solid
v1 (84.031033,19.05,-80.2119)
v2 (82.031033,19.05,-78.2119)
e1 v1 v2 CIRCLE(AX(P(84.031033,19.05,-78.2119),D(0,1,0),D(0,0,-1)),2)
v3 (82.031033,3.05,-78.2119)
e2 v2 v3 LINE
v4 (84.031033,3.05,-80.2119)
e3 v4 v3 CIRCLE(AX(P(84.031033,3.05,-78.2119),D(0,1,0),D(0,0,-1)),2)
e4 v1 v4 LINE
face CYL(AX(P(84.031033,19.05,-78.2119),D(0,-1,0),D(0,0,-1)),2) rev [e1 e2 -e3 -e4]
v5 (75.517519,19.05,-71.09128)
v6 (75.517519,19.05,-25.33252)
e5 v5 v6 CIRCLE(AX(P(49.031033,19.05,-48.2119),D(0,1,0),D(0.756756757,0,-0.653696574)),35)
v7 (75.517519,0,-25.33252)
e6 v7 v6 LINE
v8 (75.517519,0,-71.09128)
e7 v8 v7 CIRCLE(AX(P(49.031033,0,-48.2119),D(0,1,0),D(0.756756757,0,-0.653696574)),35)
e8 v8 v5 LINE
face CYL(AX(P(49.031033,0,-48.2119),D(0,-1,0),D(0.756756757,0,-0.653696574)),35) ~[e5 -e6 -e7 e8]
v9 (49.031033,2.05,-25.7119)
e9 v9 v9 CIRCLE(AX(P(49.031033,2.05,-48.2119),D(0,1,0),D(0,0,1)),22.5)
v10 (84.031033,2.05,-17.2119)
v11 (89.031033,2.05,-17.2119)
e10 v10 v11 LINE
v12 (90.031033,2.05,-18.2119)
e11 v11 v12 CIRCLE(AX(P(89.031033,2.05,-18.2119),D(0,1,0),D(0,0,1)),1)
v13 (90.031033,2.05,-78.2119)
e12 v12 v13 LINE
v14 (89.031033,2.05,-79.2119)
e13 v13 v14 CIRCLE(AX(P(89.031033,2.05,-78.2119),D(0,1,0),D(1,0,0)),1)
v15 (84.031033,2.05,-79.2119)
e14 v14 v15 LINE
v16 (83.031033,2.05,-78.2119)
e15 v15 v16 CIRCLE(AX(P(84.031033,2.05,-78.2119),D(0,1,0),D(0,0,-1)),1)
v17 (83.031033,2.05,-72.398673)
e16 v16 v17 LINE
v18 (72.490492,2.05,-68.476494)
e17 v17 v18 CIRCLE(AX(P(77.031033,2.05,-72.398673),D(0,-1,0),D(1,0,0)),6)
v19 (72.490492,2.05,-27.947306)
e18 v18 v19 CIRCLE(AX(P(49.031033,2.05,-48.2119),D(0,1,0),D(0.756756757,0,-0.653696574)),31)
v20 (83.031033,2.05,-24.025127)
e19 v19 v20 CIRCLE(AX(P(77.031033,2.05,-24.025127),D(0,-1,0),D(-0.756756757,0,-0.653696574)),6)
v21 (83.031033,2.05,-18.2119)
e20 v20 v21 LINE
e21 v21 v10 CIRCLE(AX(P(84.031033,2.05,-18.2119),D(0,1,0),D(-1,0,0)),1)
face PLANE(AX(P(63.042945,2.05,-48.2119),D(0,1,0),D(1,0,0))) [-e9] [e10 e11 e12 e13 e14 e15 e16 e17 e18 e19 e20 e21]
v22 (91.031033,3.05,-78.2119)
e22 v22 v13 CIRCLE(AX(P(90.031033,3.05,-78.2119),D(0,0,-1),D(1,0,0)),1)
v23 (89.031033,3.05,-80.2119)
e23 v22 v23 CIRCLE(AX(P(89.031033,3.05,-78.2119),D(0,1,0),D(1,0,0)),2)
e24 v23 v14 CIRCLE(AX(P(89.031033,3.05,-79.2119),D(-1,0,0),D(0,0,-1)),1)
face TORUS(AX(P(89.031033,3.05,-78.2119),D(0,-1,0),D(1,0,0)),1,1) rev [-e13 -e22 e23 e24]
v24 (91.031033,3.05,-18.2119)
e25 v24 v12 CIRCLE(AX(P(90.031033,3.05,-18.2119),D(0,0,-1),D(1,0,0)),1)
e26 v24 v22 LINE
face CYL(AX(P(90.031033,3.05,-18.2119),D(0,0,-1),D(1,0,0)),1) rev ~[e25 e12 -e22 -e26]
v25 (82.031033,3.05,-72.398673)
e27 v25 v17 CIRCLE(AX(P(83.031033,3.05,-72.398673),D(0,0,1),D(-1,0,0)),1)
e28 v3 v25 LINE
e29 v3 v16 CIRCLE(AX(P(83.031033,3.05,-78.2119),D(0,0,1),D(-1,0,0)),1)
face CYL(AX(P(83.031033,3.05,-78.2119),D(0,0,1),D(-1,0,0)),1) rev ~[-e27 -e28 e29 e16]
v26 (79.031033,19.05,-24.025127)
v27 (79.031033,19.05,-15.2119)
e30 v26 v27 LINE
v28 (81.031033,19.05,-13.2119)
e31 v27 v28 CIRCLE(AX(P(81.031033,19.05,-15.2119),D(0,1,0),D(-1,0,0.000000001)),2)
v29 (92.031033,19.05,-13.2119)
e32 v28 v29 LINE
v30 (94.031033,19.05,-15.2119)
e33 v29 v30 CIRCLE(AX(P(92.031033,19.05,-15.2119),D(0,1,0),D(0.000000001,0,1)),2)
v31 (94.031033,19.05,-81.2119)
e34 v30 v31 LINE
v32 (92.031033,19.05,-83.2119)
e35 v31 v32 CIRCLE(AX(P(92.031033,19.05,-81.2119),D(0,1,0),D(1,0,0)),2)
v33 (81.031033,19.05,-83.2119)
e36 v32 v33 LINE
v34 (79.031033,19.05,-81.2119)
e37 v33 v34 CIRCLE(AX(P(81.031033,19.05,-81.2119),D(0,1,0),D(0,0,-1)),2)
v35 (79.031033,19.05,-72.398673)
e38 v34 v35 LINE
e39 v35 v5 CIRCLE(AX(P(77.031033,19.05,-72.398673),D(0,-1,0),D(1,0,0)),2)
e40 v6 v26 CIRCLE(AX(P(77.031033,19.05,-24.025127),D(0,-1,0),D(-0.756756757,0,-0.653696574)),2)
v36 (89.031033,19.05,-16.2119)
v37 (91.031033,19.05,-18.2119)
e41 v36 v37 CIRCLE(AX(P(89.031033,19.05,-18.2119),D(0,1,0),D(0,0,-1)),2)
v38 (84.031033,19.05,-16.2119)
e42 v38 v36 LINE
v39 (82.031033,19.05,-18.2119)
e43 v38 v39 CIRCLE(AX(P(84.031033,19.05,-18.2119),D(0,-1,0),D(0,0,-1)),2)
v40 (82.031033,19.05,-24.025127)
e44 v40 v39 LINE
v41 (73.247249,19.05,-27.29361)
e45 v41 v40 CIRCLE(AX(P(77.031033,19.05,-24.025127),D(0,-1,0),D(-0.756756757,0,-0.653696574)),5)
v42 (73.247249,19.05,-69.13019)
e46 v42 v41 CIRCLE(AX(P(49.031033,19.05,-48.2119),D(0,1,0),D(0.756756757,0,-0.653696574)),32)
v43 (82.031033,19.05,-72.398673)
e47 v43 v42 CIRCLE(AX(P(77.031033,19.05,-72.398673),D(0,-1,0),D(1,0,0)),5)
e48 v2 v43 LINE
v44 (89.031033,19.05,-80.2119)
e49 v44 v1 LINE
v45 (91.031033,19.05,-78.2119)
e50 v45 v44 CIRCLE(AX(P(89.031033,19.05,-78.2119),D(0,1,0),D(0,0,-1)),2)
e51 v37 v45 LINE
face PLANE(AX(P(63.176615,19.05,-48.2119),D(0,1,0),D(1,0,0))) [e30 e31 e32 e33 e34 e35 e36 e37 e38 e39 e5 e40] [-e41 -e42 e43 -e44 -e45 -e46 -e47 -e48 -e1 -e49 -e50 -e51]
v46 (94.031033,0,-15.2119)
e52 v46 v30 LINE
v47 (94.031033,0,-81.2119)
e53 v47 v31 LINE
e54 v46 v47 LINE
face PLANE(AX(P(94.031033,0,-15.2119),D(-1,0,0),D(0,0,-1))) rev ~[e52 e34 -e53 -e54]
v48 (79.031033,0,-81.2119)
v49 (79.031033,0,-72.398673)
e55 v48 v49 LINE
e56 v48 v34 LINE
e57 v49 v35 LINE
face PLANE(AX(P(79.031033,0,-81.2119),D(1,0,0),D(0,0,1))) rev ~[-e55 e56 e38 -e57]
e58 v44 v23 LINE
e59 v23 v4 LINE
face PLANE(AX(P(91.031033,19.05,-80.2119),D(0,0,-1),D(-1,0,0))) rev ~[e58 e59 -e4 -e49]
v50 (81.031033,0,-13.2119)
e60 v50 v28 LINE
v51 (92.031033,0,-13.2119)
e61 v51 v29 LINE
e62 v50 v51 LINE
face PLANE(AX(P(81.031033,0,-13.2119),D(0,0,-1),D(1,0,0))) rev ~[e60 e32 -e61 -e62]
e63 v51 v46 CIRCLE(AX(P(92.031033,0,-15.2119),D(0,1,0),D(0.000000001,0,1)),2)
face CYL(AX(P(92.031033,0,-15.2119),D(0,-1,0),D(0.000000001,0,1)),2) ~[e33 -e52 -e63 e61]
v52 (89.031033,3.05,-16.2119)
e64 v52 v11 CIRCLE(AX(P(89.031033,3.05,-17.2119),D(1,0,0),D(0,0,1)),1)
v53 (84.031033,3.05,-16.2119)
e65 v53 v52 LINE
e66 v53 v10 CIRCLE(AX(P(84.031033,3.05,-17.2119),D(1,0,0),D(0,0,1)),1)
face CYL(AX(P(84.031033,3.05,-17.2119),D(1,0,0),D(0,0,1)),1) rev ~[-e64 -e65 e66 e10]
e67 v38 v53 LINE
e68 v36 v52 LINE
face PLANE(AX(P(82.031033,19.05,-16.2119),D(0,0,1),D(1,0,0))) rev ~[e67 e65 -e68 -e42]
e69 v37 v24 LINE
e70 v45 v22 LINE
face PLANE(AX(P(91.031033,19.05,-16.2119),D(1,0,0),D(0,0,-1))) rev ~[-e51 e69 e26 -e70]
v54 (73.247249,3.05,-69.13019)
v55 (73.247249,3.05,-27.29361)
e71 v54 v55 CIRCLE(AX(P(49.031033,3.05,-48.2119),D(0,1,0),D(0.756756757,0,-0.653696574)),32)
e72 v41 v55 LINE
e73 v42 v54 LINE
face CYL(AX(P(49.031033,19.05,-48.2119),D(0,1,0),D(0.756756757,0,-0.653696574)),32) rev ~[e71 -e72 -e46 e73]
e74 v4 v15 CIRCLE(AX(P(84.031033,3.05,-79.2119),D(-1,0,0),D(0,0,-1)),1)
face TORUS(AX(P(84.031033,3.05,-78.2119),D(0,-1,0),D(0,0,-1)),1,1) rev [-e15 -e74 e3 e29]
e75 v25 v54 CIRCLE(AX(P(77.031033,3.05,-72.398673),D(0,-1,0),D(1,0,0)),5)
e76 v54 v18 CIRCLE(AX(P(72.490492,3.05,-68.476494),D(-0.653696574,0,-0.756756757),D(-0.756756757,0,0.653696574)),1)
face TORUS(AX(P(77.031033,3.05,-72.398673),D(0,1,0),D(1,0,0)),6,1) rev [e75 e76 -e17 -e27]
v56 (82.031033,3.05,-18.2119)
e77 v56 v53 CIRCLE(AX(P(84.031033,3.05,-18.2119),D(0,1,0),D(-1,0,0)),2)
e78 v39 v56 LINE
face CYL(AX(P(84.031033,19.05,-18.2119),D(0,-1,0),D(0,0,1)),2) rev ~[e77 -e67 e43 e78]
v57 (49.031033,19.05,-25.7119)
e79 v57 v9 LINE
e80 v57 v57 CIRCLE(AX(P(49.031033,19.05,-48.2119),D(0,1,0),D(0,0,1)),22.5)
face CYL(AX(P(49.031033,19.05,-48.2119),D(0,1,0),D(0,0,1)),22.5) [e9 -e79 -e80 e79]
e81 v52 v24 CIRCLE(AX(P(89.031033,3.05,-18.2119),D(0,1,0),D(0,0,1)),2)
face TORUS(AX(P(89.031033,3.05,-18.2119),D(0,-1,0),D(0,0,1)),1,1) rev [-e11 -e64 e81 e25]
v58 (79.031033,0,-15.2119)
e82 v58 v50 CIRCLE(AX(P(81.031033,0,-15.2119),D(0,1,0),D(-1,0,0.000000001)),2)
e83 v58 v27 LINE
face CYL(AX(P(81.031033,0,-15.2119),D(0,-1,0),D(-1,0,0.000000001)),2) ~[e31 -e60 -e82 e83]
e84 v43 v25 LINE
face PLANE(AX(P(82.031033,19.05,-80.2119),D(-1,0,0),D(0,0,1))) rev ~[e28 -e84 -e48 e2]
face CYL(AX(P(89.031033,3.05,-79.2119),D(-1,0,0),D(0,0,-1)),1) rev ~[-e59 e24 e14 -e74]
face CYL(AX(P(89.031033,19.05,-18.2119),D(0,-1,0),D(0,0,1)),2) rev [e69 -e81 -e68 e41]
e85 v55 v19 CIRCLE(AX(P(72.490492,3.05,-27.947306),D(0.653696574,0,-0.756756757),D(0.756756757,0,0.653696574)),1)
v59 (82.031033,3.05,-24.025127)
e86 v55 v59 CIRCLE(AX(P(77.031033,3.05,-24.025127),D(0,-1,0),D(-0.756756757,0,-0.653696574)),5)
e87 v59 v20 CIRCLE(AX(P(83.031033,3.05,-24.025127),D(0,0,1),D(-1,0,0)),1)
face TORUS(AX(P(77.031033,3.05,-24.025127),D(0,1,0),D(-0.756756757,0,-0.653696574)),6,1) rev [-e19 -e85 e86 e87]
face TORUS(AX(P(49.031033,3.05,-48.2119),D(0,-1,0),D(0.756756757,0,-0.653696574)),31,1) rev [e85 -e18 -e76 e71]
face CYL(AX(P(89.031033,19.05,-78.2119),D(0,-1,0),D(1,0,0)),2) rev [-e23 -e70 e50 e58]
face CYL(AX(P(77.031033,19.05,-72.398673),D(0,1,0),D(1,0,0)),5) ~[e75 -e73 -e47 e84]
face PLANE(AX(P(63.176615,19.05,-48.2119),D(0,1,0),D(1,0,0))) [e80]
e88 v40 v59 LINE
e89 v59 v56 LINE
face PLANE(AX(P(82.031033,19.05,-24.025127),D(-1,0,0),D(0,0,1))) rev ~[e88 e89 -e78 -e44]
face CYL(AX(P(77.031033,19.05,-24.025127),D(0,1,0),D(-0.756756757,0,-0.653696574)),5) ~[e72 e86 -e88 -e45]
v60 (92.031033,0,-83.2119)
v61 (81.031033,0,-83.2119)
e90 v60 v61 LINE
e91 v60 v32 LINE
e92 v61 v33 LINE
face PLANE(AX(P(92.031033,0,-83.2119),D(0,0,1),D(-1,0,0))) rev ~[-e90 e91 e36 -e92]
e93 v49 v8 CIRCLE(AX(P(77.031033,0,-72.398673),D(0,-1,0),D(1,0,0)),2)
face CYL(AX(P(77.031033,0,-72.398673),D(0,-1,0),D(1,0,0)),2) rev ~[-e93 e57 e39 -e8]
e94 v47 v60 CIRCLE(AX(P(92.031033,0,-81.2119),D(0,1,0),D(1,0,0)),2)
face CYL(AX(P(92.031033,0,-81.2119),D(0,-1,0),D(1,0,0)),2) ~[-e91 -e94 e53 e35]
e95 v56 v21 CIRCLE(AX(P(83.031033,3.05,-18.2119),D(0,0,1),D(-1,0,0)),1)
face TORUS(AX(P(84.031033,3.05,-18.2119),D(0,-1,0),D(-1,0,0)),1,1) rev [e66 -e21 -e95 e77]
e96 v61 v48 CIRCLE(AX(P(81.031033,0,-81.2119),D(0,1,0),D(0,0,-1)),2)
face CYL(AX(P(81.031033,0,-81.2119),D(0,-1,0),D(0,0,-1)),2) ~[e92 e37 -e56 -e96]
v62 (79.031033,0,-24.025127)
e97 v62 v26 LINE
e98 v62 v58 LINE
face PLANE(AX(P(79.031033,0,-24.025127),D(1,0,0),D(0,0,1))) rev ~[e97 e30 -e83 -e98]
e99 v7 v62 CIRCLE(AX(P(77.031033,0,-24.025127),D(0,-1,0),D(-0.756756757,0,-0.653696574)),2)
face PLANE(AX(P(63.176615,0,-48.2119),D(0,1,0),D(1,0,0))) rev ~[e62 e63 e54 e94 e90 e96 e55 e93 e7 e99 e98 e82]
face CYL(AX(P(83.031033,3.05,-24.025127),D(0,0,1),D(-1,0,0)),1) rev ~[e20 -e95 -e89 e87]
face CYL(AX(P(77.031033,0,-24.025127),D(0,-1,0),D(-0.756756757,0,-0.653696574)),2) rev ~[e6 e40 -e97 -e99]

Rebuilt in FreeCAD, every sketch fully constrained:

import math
import FreeCAD as App
import Part
import Sketcher
from FreeCAD import Vector


def edges_at(feature, points):
    """Names of the edges that pass closest to the given points."""
    edges = feature.Shape.Edges
    near = lambda p: min(range(len(edges)), key=lambda i: edges[i].distToShape(Part.Vertex(*p))[0])
    return sorted({f"Edge{near(p) + 1}" for p in points})

doc = App.newDocument("Part")
params = doc.addObject("Spreadsheet::Sheet", "Params")
for row, (alias, value) in enumerate([
    ("sketch1_radius", "2 mm"),
    ("sketch1_radius2", "35 mm"),
    ("sketch1_width", "11 mm"),
    ("sketch1_height", "66 mm"),
    ("pad1_length", "19.05 mm"),
    ("sketch2_diameter", "45 mm"),
    ("sketch2_radius", "5 mm"),
    ("sketch2_radius2", "32 mm"),
    ("sketch2_width", "9 mm"),
    ("sketch2_height", "64 mm"),
    ("pocket1_length", "17 mm"),
    ("fillet_radius", "2 mm"),
    ("fillet2_radius", "1 mm"),
], start=1):
    params.set(f"A{row}", alias)
    params.set(f"B{row}", "=" + value)
    params.setAlias(f"B{row}", alias)

body = doc.addObject("PartDesign::Body", "Body")

# Sketch on XZ plane
sketch1 = body.newObject("Sketcher::SketchObject", "Sketch")
sketch1.AttachmentSupport = (doc.getObject("XZ_Plane"), [""])
sketch1.MapMode = "FlatFace"
sketch1.addGeometry([
    Part.LineSegment(Vector(79, -24, 0), Vector(79, -15.2, 0)),  # 0
    Part.ArcOfCircle(Part.Circle(Vector(81, -15.2, 0), Vector(0, 0, 1), 2), math.radians(90), math.radians(180)),  # 1
    Part.LineSegment(Vector(81, -13.2, 0), Vector(92, -13.2, 0)),  # 2
    Part.ArcOfCircle(Part.Circle(Vector(92, -15.2, 0), Vector(0, 0, 1), 2), math.radians(0), math.radians(90)),  # 3
    Part.LineSegment(Vector(94, -15.2, 0), Vector(94, -81.2, 0)),  # 4
    Part.ArcOfCircle(Part.Circle(Vector(92, -81.2, 0), Vector(0, 0, 1), 2), math.radians(-90), math.radians(0)),  # 5
    Part.LineSegment(Vector(92, -83.2, 0), Vector(81, -83.2, 0)),  # 6
    Part.ArcOfCircle(Part.Circle(Vector(81, -81.2, 0), Vector(0, 0, 1), 2), math.radians(180), math.radians(270)),  # 7
    Part.LineSegment(Vector(79, -81.2, 0), Vector(79, -72.4, 0)),  # 8
    Part.ArcOfCircle(Part.Circle(Vector(77, -72.4, 0), Vector(0, 0, 1), 2), math.radians(0), math.radians(139)),  # 9
    Part.ArcOfCircle(Part.Circle(Vector(49, -48.2, 0), Vector(0, 0, 1), 35), math.radians(41), math.radians(319)),  # 10
    Part.ArcOfCircle(Part.Circle(Vector(77, -24, 0), Vector(0, 0, 1), 2), math.radians(-139), math.radians(0)),  # 11
], False)
sketch1.addConstraint([
    Sketcher.Constraint("Tangent", 0, 2, 1, 2),
    Sketcher.Constraint("Tangent", 1, 1, 2, 1),
    Sketcher.Constraint("Tangent", 2, 2, 3, 2),
    Sketcher.Constraint("Tangent", 3, 1, 4, 1),
    Sketcher.Constraint("Tangent", 4, 2, 5, 2),
    Sketcher.Constraint("Tangent", 5, 1, 6, 1),
    Sketcher.Constraint("Tangent", 6, 2, 7, 2),
    Sketcher.Constraint("Tangent", 7, 1, 8, 1),
    Sketcher.Constraint("Tangent", 8, 2, 9, 1),
    Sketcher.Constraint("Tangent", 9, 2, 10, 2),
    Sketcher.Constraint("Tangent", 10, 1, 11, 1),
    Sketcher.Constraint("Tangent", 11, 2, 0, 1),
    Sketcher.Constraint("Vertical", 0),
    Sketcher.Constraint("Horizontal", 2),
    Sketcher.Constraint("Vertical", 4),
    Sketcher.Constraint("Horizontal", 6),
    Sketcher.Constraint("Vertical", 8),
    Sketcher.Constraint("Equal", 1, 3),
    Sketcher.Constraint("Equal", 3, 5),
    Sketcher.Constraint("Equal", 5, 7),
    Sketcher.Constraint("Equal", 7, 9),
    Sketcher.Constraint("Equal", 9, 11),
    Sketcher.Constraint("Vertical", 1, 3, 7, 3),
    Sketcher.Constraint("Equal", 0, 8),
    Sketcher.Constraint("Radius", 1, 2.0),
    Sketcher.Constraint("Radius", 10, 35.0),
    Sketcher.Constraint("DistanceX", 2, 1, 2, 2, 11.0),
    Sketcher.Constraint("DistanceY", 4, 2, 4, 1, 66.0),
    Sketcher.Constraint("DistanceX", 10, 3, 9, 3, 28.0),
    Sketcher.Constraint("DistanceY", 1, 3, -1, 1, 15.2119),
    Sketcher.Constraint("DistanceX", -1, 1, 9, 2, 75.517519),
])
sketch1.setExpression("Constraints[24]", "Params.sketch1_radius")
sketch1.setExpression("Constraints[25]", "Params.sketch1_radius2")
sketch1.setExpression("Constraints[26]", "Params.sketch1_width")
sketch1.setExpression("Constraints[27]", "Params.sketch1_height")
pad1 = body.newObject("PartDesign::Pad", "Pad")
pad1.Profile = sketch1
pad1.setExpression("Length", "Params.pad1_length")
pad1.Reversed = True

# Sketch on XZ plane
sketch2 = body.newObject("Sketcher::SketchObject", "Sketch001")
sketch2.AttachmentSupport = (doc.getObject("XZ_Plane"), [""])
sketch2.MapMode = "FlatFace"
sketch2.AttachmentOffset = App.Placement(Vector(0, 0, -19.05), App.Rotation())
sketch2.addGeometry([
    Part.LineSegment(Vector(82, -16, 0), Vector(91, -16, 0)),  # 0
    Part.LineSegment(Vector(91, -16, 0), Vector(91, -80, 0)),  # 1
    Part.LineSegment(Vector(91, -80, 0), Vector(82, -80, 0)),  # 2
    Part.LineSegment(Vector(82, -80, 0), Vector(82, -72, 0)),  # 3
    Part.ArcOfCircle(Part.Circle(Vector(77, -72, 0), Vector(0, 0, 1), 5), math.radians(0), math.radians(139)),  # 4
    Part.ArcOfCircle(Part.Circle(Vector(49, -48, 0), Vector(0, 0, 1), 32), math.radians(41), math.radians(319)),  # 5
    Part.ArcOfCircle(Part.Circle(Vector(77, -24, 0), Vector(0, 0, 1), 5), math.radians(-139), math.radians(0)),  # 6
    Part.LineSegment(Vector(82, -24, 0), Vector(82, -16, 0)),  # 7
    Part.Circle(Vector(49, -48, 0), Vector(0, 0, 1), 22),  # 8
], False)
sketch2.addConstraint([
    Sketcher.Constraint("Coincident", 0, 2, 1, 1),
    Sketcher.Constraint("Coincident", 1, 2, 2, 1),
    Sketcher.Constraint("Coincident", 2, 2, 3, 1),
    Sketcher.Constraint("Tangent", 3, 2, 4, 1),
    Sketcher.Constraint("Tangent", 4, 2, 5, 2),
    Sketcher.Constraint("Tangent", 5, 1, 6, 1),
    Sketcher.Constraint("Tangent", 6, 2, 7, 1),
    Sketcher.Constraint("Coincident", 7, 2, 0, 1),
    Sketcher.Constraint("Horizontal", 0),
    Sketcher.Constraint("Vertical", 1),
    Sketcher.Constraint("Horizontal", 2),
    Sketcher.Constraint("Vertical", 3),
    Sketcher.Constraint("Vertical", 7),
    Sketcher.Constraint("Coincident", 8, 3, 5, 3),
    Sketcher.Constraint("Equal", 4, 6),
    Sketcher.Constraint("Vertical", 4, 3, 6, 3),
    Sketcher.Constraint("Equal", 3, 7),
    Sketcher.Constraint("Diameter", 8, 45.0),
    Sketcher.Constraint("Radius", 4, 5.0),
    Sketcher.Constraint("Radius", 5, 32.0),
    Sketcher.Constraint("DistanceX", 0, 1, 0, 2, 9.0),
    Sketcher.Constraint("DistanceY", 1, 2, 1, 1, 64.0),
    Sketcher.Constraint("DistanceX", 5, 3, 4, 3, 28.0),
    Sketcher.Constraint("DistanceY", 5, 3, -1, 1, 48.2119),
    Sketcher.Constraint("DistanceX", -1, 1, 4, 2, 73.247249),
])
sketch2.setExpression("Constraints[17]", "Params.sketch2_diameter")
sketch2.setExpression("Constraints[18]", "Params.sketch2_radius")
sketch2.setExpression("Constraints[19]", "Params.sketch2_radius2")
sketch2.setExpression("Constraints[20]", "Params.sketch2_width")
sketch2.setExpression("Constraints[21]", "Params.sketch2_height")
pocket1 = body.newObject("PartDesign::Pocket", "Pocket")
pocket1.Profile = sketch2
pocket1.setExpression("Length", "Params.pocket1_length")
pocket1.Reversed = True
doc.recompute()

fillet = body.newObject("PartDesign::Fillet", "Fillet")
fillet.Base = (pocket1, edges_at(pocket1, [
    (82.031, 10.55, -16.212),
    (82.031, 10.55, -80.212),
    (91.031, 10.55, -80.212),
    (91.031, 10.55, -16.212),
]))
fillet.setExpression("Radius", "Params.fillet_radius")
doc.recompute()

fillet2 = body.newObject("PartDesign::Fillet", "Fillet001")
fillet2.Base = (fillet, edges_at(fillet, [
    (82.031, 2.05, -21.119),
    (78.775, 2.05, -28.711),
    (17.031, 2.05, -48.212),
    (78.775, 2.05, -67.713),
    (91.031, 2.05, -48.212),
    (86.531, 2.05, -16.212),
    (86.531, 2.05, -80.212),
    (82.031, 2.05, -75.305),
    (82.617, 2.05, -79.626),
    (90.445, 2.05, -79.626),
    (82.617, 2.05, -16.798),
    (90.445, 2.05, -16.798),
]))
fillet2.setExpression("Radius", "Params.fillet2_radius")

doc.recompute()
